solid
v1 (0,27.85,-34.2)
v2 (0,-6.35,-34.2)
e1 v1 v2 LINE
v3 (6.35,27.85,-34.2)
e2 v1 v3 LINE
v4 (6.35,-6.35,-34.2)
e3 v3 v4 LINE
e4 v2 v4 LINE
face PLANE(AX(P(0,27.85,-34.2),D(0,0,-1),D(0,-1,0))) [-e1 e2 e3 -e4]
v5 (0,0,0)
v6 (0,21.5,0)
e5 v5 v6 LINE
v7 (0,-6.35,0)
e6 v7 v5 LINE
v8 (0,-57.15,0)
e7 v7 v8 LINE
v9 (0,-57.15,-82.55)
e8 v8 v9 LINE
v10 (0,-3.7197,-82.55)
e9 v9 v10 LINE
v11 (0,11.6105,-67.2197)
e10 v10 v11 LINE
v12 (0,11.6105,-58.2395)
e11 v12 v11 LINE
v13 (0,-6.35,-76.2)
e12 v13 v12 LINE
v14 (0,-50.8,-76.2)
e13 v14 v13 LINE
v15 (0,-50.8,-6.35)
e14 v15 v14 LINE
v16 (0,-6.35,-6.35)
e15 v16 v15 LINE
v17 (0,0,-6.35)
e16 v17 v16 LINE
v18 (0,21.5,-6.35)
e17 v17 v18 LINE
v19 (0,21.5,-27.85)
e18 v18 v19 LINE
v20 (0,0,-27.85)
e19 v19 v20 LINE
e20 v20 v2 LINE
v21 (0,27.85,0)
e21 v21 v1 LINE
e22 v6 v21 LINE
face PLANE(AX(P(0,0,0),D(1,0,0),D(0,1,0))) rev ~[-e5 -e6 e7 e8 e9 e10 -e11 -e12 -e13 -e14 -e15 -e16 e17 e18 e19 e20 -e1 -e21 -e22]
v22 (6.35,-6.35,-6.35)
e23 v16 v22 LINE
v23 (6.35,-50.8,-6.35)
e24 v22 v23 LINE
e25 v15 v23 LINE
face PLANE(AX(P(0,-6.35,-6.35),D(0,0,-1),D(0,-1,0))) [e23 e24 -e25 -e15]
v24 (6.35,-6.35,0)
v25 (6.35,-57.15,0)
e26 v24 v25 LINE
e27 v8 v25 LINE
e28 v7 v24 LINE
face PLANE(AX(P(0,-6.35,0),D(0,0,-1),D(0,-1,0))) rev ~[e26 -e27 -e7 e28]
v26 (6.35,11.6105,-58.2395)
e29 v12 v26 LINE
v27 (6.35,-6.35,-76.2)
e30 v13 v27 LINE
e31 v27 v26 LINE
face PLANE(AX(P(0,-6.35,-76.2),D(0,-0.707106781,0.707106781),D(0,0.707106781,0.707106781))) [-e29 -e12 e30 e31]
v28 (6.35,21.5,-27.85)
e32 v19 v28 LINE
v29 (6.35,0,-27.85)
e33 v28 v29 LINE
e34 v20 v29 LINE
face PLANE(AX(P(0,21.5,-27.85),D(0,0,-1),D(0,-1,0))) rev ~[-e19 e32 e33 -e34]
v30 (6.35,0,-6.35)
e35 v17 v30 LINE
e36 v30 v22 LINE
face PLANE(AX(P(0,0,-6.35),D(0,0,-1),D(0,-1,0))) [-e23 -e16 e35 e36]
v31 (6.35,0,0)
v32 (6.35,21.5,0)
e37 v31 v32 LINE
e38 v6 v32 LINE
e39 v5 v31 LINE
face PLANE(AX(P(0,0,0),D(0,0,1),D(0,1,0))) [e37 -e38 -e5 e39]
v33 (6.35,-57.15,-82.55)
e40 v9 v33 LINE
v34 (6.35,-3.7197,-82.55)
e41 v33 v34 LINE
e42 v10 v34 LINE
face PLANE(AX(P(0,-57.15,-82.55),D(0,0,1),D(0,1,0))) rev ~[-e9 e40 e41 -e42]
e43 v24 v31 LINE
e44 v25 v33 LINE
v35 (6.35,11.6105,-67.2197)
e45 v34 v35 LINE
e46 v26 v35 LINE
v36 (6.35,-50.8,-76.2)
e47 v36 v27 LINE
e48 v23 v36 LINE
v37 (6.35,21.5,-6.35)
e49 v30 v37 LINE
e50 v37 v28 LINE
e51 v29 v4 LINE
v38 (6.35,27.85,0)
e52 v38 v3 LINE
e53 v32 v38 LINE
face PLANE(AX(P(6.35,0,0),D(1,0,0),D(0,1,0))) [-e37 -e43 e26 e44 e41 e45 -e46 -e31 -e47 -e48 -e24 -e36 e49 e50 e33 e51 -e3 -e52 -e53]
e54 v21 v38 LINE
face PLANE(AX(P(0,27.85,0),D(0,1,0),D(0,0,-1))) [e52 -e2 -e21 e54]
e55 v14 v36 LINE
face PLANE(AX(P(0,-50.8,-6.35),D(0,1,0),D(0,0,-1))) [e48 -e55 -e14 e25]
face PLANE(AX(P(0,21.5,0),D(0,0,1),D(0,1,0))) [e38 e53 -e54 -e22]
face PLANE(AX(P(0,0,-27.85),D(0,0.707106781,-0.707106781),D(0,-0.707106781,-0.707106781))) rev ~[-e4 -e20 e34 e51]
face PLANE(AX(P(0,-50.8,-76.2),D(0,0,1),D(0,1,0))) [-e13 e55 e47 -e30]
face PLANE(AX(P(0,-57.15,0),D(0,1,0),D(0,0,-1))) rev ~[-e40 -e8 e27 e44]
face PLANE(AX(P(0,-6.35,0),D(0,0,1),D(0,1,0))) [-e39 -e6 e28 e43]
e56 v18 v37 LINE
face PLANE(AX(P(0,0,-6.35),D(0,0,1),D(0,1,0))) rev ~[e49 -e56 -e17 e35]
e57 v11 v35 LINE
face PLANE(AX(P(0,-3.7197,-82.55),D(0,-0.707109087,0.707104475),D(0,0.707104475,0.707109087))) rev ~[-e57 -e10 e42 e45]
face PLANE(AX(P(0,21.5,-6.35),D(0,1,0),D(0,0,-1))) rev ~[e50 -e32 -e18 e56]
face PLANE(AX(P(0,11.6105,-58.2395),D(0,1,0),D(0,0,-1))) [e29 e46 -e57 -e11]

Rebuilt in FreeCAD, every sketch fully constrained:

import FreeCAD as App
import Part
import Sketcher

V = App.Vector
Q = App.Units.Quantity


def add_polygon(sketch, points):
    """Adds a closed chain of lines whose ends are joined by coincident constraints."""
    first, n = sketch.GeometryCount, len(points)
    for a, b in zip(points, points[1:] + points[:1]):
        sketch.addGeometry(Part.LineSegment(App.Vector(*a, 0), App.Vector(*b, 0)), False)
    for i in range(n):
        sketch.addConstraint(Sketcher.Constraint("Coincident", first + i, 2, first + (i + 1) % n, 1))

doc = App.newDocument("Part")
body = doc.addObject("PartDesign::Body", "Body")

# Sketch on YZ plane
sketch1 = body.newObject("Sketcher::SketchObject", "Sketch")
sketch1.AttachmentSupport = (doc.getObject("YZ_Plane"), [""])
sketch1.MapMode = "FlatFace"
add_polygon(sketch1, [(28, 0), (-57, 0), (-57, -83), (-4, -83), (12, -67), (12, -58), (-6, -76), (-51, -76), (-51, -6), (22, -6), (22, -28), (0, -28), (-6, -34), (28, -34)])  # lines 0-13
sketch1.addConstraint([
    Sketcher.Constraint("Horizontal", 0),
    Sketcher.Constraint("Vertical", 1),
    Sketcher.Constraint("Horizontal", 2),
    Sketcher.Constraint("Vertical", 4),
    Sketcher.Constraint("Horizontal", 6),
    Sketcher.Constraint("Vertical", 7),
    Sketcher.Constraint("Horizontal", 8),
    Sketcher.Constraint("Vertical", 9),
    Sketcher.Constraint("Horizontal", 10),
    Sketcher.Constraint("Horizontal", 12),
    Sketcher.Constraint("Vertical", 13),
    Sketcher.Constraint("PointOnObject", 0, 2, -1),
    Sketcher.Constraint("PointOnObject", 10, 2, -2),
    Sketcher.Constraint("Parallel", 3, 5),
    Sketcher.Constraint("Parallel", 5, 11),
    Sketcher.Constraint("Vertical", 5, 2, 11, 2),
    Sketcher.Constraint("Equal", 10, 9),
    Sketcher.Constraint("Equal", 12, 13),
    Sketcher.Constraint("Distance", 5, Q("1 in")),
    Sketcher.Constraint("DistanceX", 6, 2, -1, 1, Q("2 in")),
    Sketcher.Constraint("Angle", 5, Q("-135 deg")),
    Sketcher.Constraint("DistanceX", 1, 2, 5, 2, Q("2 in")),
    Sketcher.Constraint("DistanceY", 1, 2, 1, 1, Q("3.25 in")),
    Sketcher.Constraint("DistanceX", 5, 2, -1, 1, Q("0.25 in")),
    Sketcher.Constraint("DistanceY", 7, 2, -1, 1, Q("0.25 in")),
    Sketcher.Constraint("DistanceY", 2, 2, 5, 2, Q("0.25 in")),
    Sketcher.Constraint("DistanceX", 10, 2, 10, 1, Q("21.5 mm")),
    Sketcher.Constraint("DistanceY", 3, 2, 11, 2, Q("1.3 in")),
])
pad1 = body.newObject("PartDesign::Pad", "Pad")
pad1.Profile = sketch1
pad1.Length = Q("0.25 in")

doc.recompute()
